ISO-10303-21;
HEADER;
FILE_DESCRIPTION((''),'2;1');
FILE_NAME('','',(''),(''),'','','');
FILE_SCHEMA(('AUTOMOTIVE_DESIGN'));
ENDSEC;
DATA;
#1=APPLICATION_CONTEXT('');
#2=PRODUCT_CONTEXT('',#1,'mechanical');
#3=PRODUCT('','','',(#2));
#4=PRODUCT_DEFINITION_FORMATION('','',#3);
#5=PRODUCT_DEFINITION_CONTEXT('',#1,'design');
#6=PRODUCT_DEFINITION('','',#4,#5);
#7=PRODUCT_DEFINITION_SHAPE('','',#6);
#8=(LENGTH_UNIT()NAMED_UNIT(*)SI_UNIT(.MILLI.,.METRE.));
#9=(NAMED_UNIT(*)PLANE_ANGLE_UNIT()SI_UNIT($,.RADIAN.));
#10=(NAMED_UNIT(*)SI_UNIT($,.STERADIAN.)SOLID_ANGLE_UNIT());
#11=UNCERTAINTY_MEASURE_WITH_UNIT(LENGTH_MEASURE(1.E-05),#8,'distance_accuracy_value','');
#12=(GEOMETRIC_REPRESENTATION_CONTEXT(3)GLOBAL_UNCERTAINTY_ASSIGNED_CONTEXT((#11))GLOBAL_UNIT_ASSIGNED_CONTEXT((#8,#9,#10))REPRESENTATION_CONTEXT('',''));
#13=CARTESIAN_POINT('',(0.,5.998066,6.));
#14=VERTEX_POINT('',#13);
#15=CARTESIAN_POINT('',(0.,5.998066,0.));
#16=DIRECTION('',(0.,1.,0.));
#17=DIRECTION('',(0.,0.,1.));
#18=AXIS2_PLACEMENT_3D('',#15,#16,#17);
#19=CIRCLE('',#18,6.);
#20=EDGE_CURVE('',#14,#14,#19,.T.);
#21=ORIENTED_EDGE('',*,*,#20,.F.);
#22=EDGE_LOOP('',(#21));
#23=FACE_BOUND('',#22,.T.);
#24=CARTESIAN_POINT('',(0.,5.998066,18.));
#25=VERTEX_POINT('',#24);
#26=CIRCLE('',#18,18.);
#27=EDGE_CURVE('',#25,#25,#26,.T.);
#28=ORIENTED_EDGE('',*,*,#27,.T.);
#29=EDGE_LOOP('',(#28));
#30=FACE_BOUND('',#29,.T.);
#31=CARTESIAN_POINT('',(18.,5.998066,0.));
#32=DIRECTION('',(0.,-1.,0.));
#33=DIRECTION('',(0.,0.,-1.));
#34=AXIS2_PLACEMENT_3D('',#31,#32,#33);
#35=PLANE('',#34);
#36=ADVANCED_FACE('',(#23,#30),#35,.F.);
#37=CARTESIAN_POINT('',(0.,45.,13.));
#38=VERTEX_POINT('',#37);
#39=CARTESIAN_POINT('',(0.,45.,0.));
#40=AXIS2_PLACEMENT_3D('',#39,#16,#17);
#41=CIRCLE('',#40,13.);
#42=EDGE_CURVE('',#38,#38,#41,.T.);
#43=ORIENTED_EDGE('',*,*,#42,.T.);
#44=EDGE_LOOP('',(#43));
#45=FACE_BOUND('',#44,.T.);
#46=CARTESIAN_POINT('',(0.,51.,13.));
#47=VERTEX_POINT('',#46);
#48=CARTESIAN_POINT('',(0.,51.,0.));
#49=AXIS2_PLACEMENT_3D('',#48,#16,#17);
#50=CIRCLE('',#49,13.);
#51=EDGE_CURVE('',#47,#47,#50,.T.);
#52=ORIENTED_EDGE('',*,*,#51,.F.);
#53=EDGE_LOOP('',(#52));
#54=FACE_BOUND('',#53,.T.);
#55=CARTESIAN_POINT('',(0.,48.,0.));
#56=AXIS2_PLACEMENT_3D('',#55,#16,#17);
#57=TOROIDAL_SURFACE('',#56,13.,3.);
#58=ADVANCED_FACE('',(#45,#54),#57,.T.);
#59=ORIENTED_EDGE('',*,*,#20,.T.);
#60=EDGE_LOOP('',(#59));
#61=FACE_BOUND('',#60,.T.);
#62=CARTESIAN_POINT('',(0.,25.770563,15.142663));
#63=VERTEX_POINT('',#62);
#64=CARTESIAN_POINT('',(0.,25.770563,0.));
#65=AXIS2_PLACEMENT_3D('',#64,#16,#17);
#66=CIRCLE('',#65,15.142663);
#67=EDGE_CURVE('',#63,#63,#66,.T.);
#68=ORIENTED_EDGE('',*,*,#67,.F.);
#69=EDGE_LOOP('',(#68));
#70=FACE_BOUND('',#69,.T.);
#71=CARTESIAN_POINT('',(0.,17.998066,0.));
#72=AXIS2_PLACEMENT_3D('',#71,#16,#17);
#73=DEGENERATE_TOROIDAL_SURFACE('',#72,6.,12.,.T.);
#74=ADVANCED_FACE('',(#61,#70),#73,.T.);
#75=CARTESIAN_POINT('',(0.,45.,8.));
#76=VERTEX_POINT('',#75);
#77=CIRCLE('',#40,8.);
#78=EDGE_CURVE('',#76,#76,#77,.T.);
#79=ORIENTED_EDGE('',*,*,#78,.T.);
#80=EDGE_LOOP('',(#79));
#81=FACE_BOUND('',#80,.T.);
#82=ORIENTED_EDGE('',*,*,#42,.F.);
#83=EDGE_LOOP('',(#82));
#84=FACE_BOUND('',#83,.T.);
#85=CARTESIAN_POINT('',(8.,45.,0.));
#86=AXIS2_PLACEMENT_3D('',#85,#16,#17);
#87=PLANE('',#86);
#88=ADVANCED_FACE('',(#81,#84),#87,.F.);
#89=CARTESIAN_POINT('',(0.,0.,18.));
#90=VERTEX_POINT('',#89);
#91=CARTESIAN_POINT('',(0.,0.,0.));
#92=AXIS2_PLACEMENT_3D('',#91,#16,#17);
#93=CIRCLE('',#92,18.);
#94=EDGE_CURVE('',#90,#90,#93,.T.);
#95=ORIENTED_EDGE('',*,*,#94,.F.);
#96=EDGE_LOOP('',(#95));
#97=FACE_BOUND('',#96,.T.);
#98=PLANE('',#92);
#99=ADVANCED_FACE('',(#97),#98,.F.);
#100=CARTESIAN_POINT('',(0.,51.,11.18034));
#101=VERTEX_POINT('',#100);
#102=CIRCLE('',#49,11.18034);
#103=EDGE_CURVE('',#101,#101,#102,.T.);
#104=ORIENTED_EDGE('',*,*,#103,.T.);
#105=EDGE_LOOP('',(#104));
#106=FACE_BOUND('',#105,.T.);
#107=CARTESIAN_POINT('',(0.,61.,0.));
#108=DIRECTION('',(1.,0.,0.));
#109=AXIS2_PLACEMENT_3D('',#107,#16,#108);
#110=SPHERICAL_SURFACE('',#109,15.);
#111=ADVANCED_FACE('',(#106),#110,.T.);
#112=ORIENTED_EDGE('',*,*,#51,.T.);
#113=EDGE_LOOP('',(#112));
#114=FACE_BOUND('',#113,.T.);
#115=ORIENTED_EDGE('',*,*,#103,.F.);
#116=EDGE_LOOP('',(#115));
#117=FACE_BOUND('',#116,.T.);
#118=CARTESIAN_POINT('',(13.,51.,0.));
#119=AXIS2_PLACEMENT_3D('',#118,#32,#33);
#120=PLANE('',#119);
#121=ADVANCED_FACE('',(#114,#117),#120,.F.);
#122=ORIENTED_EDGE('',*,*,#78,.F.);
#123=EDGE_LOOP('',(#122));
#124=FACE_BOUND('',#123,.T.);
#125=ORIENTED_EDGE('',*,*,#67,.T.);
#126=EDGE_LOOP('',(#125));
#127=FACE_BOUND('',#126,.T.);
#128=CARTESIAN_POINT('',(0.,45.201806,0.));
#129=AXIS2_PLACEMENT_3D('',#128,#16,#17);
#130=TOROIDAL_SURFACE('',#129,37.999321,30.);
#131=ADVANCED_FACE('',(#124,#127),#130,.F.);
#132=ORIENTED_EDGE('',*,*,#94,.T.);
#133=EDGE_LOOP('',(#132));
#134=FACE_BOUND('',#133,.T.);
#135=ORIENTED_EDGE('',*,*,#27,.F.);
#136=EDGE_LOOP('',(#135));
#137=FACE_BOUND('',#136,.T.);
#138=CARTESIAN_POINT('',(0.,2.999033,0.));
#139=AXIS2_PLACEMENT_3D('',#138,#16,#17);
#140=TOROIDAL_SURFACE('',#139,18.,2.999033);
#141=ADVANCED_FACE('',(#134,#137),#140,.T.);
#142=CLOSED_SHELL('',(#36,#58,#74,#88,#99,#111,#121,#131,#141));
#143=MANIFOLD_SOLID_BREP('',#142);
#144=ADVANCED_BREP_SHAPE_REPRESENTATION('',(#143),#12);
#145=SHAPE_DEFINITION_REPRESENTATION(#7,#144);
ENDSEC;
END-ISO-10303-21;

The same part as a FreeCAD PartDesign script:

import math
import FreeCAD as App
import Part
import Sketcher

V = App.Vector

doc = App.newDocument("Part")
body = doc.addObject("PartDesign::Body", "Body")

# Sketch on XY plane
sketch1 = doc.addObject("Sketcher::SketchObject", "Sketch")
body.addObject(sketch1)
sketch1.AttachmentSupport = (doc.XY_Plane, [""])
sketch1.MapMode = "FlatFace"
sketch1.addGeometry(Part.LineSegment(V(0, 0, 0), V(18, 0, 0)), False)
sketch1.addGeometry(Part.ArcOfCircle(Part.Circle(V(18, 3, 0), V(0, 0, 1), 3), math.radians(-90), math.radians(90)), False)
sketch1.addGeometry(Part.LineSegment(V(18, 6, 0), V(6, 6, 0)), False)
sketch1.addGeometry(Part.ArcOfCircle(Part.Circle(V(6, 18, 0), V(0, 0, 1), 12), math.radians(-90), math.radians(40)), False)
sketch1.addGeometry(Part.ArcOfCircle(Part.Circle(V(38, 45.2, 0), V(0, 0, 1), 30), math.radians(-180), math.radians(-140)), False)
sketch1.addGeometry(Part.LineSegment(V(8, 45, 0), V(13, 45, 0)), False)
sketch1.addGeometry(Part.ArcOfCircle(Part.Circle(V(13, 48, 0), V(0, 0, 1), 3), math.radians(-90), math.radians(90)), False)
sketch1.addGeometry(Part.LineSegment(V(13, 51, 0), V(11.2, 51, 0)), False)
sketch1.addGeometry(Part.ArcOfCircle(Part.Circle(V(0, 61, 0), V(0, 0, 1), 15), math.radians(-42), math.radians(90)), False)
sketch1.addGeometry(Part.LineSegment(V(0, 76, 0), V(0, 0, 0)), False)
sketch1.addConstraint(Sketcher.Constraint("Tangent", 0, 2, 1, 1))
sketch1.addConstraint(Sketcher.Constraint("Tangent", 1, 2, 2, 1))
sketch1.addConstraint(Sketcher.Constraint("Tangent", 2, 2, 3, 1))
sketch1.addConstraint(Sketcher.Constraint("Tangent", 3, 2, 4, 2))
sketch1.addConstraint(Sketcher.Constraint("Coincident", 4, 1, 5, 1))
sketch1.addConstraint(Sketcher.Constraint("Tangent", 5, 2, 6, 1))
sketch1.addConstraint(Sketcher.Constraint("Tangent", 6, 2, 7, 1))
sketch1.addConstraint(Sketcher.Constraint("Coincident", 7, 2, 8, 1))
sketch1.addConstraint(Sketcher.Constraint("Coincident", 8, 2, 9, 1))
sketch1.addConstraint(Sketcher.Constraint("Coincident", 9, 2, 0, 1))
sketch1.addConstraint(Sketcher.Constraint("Horizontal", 0))
sketch1.addConstraint(Sketcher.Constraint("Horizontal", 2))
sketch1.addConstraint(Sketcher.Constraint("Horizontal", 5))
sketch1.addConstraint(Sketcher.Constraint("Horizontal", 7))
sketch1.addConstraint(Sketcher.Constraint("Vertical", 9))
sketch1.addConstraint(Sketcher.Constraint("Coincident", 9, 2, -1, 1))
sketch1.addConstraint(Sketcher.Constraint("PointOnObject", 8, 3, -2))
sketch1.addConstraint(Sketcher.Constraint("Radius", 3, 12.0))
sketch1.addConstraint(Sketcher.Constraint("Radius", 4, 30.0))
sketch1.addConstraint(Sketcher.Constraint("Radius", 6, 3.0))
sketch1.addConstraint(Sketcher.Constraint("Radius", 8, 15.0))
sketch1.addConstraint(Sketcher.Constraint("DistanceX", 0, 1, 0, 2, 18.0))
sketch1.addConstraint(Sketcher.Constraint("DistanceX", 2, 2, 2, 1, 12.0))
sketch1.addConstraint(Sketcher.Constraint("DistanceX", 5, 1, 5, 2, 5.0))
sketch1.addConstraint(Sketcher.Constraint("DistanceY", 9, 2, 9, 1, 76.0))
sketch1.addConstraint(Sketcher.Constraint("DistanceX", -1, 1, 6, 3, 13.0))
sketch1.addConstraint(Sketcher.Constraint("DistanceY", -1, 1, 6, 3, 48.0))
sketch1.addConstraint(Sketcher.Constraint("Radius", 1, 2.999033))
revolution = doc.addObject("PartDesign::Revolution", "Revolution")
body.addObject(revolution)
revolution.Profile = sketch1
revolution.ReferenceAxis = (sketch1, ["V_Axis"])
revolution.Angle = 360

doc.recompute()
